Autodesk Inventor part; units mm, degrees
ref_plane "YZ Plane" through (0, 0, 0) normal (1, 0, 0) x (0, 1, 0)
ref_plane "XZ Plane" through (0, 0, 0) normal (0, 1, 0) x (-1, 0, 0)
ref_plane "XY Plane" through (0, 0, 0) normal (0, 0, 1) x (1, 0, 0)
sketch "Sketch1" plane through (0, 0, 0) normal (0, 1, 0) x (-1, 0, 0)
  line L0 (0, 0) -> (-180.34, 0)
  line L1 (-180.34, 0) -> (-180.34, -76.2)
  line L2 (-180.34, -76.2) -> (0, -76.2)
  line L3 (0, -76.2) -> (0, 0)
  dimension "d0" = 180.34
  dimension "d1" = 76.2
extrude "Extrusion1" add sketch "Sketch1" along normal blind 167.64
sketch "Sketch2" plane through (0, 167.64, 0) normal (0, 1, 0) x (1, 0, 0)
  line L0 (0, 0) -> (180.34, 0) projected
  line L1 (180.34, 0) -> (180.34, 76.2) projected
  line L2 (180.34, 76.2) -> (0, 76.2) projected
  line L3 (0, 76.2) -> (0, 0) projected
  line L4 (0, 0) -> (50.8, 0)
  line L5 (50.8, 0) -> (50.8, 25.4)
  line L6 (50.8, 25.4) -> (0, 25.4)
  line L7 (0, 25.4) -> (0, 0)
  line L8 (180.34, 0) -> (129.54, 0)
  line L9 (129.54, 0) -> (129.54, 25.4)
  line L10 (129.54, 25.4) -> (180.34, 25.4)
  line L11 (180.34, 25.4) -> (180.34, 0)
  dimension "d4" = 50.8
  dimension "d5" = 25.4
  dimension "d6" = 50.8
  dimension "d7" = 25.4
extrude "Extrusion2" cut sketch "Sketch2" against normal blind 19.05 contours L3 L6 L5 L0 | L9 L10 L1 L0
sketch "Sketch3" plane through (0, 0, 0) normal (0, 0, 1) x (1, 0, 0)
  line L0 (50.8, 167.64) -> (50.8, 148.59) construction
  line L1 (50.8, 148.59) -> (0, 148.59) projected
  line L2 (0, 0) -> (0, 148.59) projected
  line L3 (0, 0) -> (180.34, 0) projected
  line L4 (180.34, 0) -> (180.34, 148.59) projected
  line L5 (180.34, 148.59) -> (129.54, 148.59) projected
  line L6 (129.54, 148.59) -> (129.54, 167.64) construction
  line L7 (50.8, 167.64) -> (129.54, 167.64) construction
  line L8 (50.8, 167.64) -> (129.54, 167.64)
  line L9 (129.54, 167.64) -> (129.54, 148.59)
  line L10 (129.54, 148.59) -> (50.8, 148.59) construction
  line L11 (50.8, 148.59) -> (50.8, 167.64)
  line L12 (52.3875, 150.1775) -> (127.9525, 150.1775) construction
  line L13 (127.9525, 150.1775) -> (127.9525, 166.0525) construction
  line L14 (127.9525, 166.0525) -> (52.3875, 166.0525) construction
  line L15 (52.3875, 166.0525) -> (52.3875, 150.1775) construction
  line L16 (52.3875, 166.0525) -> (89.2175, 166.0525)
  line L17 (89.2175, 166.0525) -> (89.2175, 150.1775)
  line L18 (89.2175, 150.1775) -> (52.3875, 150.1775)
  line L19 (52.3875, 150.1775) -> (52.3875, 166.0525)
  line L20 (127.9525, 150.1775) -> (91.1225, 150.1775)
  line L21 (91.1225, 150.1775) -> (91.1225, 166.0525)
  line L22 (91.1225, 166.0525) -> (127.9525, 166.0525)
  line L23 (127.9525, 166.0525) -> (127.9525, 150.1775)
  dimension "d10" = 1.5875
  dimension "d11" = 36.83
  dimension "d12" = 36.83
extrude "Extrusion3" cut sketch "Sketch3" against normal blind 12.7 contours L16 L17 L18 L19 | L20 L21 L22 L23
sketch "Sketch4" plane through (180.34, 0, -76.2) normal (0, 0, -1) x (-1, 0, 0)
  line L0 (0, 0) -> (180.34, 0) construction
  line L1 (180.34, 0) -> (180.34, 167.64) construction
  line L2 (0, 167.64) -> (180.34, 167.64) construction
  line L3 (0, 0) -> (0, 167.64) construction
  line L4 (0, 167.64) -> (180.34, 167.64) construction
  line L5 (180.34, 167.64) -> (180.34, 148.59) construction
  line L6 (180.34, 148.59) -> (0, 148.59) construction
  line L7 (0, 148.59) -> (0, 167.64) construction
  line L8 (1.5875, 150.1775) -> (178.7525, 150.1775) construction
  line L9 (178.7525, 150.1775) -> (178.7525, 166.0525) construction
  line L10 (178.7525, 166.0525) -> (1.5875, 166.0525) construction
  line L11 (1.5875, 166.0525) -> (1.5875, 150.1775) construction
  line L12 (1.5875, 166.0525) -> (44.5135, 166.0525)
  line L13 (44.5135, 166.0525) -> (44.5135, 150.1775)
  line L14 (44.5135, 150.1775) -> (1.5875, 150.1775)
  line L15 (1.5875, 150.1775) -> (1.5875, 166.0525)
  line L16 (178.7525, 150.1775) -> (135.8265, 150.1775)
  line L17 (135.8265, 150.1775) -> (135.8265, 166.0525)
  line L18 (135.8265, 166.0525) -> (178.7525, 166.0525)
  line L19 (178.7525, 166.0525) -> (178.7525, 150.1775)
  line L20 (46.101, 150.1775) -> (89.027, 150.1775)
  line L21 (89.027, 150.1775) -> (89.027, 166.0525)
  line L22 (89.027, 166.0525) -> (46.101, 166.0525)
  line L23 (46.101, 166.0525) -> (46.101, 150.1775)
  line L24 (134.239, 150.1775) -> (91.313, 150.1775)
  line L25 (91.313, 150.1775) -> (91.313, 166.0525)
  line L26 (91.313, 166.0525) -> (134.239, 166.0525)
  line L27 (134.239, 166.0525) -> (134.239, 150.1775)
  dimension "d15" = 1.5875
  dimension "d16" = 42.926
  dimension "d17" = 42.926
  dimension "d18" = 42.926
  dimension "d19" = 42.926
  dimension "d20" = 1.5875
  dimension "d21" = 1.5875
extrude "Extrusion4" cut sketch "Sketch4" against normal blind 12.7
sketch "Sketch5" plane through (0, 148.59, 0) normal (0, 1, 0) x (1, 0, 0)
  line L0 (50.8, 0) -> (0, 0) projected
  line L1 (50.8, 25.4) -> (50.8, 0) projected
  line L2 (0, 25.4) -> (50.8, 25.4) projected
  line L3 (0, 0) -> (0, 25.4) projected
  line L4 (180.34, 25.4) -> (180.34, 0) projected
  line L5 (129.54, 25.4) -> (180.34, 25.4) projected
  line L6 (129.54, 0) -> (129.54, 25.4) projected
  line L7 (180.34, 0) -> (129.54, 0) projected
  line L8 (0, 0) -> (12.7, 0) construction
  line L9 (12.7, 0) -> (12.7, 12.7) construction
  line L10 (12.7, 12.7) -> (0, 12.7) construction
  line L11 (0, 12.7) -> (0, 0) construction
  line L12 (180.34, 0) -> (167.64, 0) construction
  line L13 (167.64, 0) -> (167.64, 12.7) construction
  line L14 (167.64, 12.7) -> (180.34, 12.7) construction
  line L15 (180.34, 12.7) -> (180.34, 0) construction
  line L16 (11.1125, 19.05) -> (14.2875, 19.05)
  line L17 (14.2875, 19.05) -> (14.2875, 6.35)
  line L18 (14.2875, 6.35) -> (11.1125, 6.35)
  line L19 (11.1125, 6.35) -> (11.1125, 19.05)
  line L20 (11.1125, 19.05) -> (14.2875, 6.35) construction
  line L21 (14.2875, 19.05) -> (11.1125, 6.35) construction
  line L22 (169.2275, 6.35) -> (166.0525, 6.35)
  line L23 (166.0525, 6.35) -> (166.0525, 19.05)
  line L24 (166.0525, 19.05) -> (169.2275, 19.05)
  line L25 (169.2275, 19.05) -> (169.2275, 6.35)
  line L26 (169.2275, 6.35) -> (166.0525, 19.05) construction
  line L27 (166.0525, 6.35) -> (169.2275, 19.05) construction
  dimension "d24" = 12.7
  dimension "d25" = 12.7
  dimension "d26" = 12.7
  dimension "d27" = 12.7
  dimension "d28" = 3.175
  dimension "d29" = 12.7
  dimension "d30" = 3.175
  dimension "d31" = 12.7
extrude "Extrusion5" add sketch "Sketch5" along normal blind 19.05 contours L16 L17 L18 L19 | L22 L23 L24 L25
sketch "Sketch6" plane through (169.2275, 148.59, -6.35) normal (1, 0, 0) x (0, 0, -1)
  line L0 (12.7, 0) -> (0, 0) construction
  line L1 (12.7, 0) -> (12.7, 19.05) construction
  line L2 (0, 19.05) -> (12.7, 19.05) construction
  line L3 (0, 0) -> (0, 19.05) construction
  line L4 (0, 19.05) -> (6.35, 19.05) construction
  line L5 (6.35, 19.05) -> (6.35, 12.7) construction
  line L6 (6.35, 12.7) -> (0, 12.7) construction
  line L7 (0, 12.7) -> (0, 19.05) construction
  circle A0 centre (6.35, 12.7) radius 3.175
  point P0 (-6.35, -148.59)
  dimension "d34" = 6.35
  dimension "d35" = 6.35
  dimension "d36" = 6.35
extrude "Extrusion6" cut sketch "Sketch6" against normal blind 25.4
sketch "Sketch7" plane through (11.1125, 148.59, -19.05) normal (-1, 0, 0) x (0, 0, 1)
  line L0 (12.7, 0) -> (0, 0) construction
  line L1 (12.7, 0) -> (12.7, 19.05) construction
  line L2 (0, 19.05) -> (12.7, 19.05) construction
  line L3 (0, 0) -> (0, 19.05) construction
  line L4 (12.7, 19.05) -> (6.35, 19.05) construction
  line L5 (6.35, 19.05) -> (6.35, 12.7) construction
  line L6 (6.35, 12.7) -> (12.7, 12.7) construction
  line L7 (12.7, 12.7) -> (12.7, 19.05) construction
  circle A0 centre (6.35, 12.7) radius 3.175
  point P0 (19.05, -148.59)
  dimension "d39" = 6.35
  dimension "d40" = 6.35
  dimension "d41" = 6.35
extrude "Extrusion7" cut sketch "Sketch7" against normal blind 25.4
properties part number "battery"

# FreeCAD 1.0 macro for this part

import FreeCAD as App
import Part
import Sketcher

V = App.Vector
Q = App.Units.Quantity


def add_polygon(sketch, points):
    """Adds a closed chain of lines whose ends are joined by coincident constraints."""
    first, n = sketch.GeometryCount, len(points)
    for a, b in zip(points, points[1:] + points[:1]):
        sketch.addGeometry(Part.LineSegment(App.Vector(*a, 0), App.Vector(*b, 0)), False)
    for i in range(n):
        sketch.addConstraint(Sketcher.Constraint("Coincident", first + i, 2, first + (i + 1) % n, 1))

doc = App.newDocument("Part")
params = doc.addObject("Spreadsheet::Sheet", "Params")
for row, (alias, value) in enumerate([
    ("sketch1_height", "3 in"),
    ("sketch1_width", "7.1 in"),
    ("pad1_length", "6.6 in"),
    ("sketch2_width", "2 in"),
    ("sketch2_height", "1 in"),
    ("pocket1_length", "0.75 in"),
    ("sketch3_width", "1.45 in"),
    ("sketch3_height", "0.625 in"),
    ("pocket2_length", "0.5 in"),
    ("sketch4_width", "1.69 in"),
    ("sketch4_height", "0.625 in"),
    ("pocket3_length", "0.5 in"),
    ("sketch5_height", "0.5 in"),
    ("sketch5_width", "0.125 in"),
    ("pad2_length", "0.75 in"),
    ("sketch6_diameter", "0.25 in"),
    ("pocket4_length", "1 in"),
    ("sketch7_diameter", "0.25 in"),
    ("pocket5_length", "1 in"),
], start=1):
    params.set(f"A{row}", alias)
    params.set(f"B{row}", "=" + value)
    params.setAlias(f"B{row}", alias)

body = doc.addObject("PartDesign::Body", "Body")

# Sketch on XZ plane
sketch1 = doc.addObject("Sketcher::SketchObject", "Sketch")
body.addObject(sketch1)
sketch1.AttachmentSupport = (doc.XZ_Plane, [""])
sketch1.MapMode = "FlatFace"
add_polygon(sketch1, [(0, -76), (0, 0), (180, 0), (180, -76)])  # lines 0-3
sketch1.addConstraint(Sketcher.Constraint("Vertical", 0))
sketch1.addConstraint(Sketcher.Constraint("Horizontal", 1))
sketch1.addConstraint(Sketcher.Constraint("Vertical", 2))
sketch1.addConstraint(Sketcher.Constraint("Horizontal", 3))
sketch1.addConstraint(Sketcher.Constraint("Coincident", 0, 2, -1, 1))
sketch1.addConstraint(Sketcher.Constraint("DistanceY", 0, 1, 0, 2, Q("3 in")))
sketch1.addConstraint(Sketcher.Constraint("DistanceX", 1, 1, 1, 2, Q("7.1 in")))
sketch1.setExpression("Constraints[9]", "Params.sketch1_height")
sketch1.setExpression("Constraints[10]", "Params.sketch1_width")
pad1 = doc.addObject("PartDesign::Pad", "Pad")
body.addObject(pad1)
pad1.Profile = sketch1
pad1.setExpression("Length", "Params.pad1_length")
pad1.Reversed = True

# Sketch on XZ plane
sketch2 = doc.addObject("Sketcher::SketchObject", "Sketch001")
body.addObject(sketch2)
sketch2.AttachmentSupport = (doc.XZ_Plane, [""])
sketch2.MapMode = "FlatFace"
sketch2.AttachmentOffset = App.Placement(V(0, 0, -6.6 * 25.4), App.Rotation())
add_polygon(sketch2, [(0, -25), (0, 0), (51, 0), (51, -25)])  # lines 0-3
add_polygon(sketch2, [(130, -25), (130, 0), (180, 0), (180, -25)])  # lines 4-7
sketch2.addConstraint(Sketcher.Constraint("Vertical", 0))
sketch2.addConstraint(Sketcher.Constraint("Horizontal", 1))
sketch2.addConstraint(Sketcher.Constraint("Vertical", 2))
sketch2.addConstraint(Sketcher.Constraint("Horizontal", 3))
sketch2.addConstraint(Sketcher.Constraint("Vertical", 4))
sketch2.addConstraint(Sketcher.Constraint("Horizontal", 5))
sketch2.addConstraint(Sketcher.Constraint("Vertical", 6))
sketch2.addConstraint(Sketcher.Constraint("Horizontal", 7))
sketch2.addConstraint(Sketcher.Constraint("Coincident", 0, 2, -1, 1))
sketch2.addConstraint(Sketcher.Constraint("PointOnObject", 4, 2, -1))
sketch2.addConstraint(Sketcher.Constraint("Horizontal", 3, 2, 6, 2))
sketch2.addConstraint(Sketcher.Constraint("Equal", 3, 5))
sketch2.addConstraint(Sketcher.Constraint("DistanceX", 1, 1, 1, 2, Q("2 in")))
sketch2.addConstraint(Sketcher.Constraint("DistanceY", 0, 1, 0, 2, Q("1 in")))
sketch2.addConstraint(Sketcher.Constraint("DistanceX", -1, 1, 4, 2, Q("5.1 in")))
sketch2.setExpression("Constraints[20]", "Params.sketch2_width")
sketch2.setExpression("Constraints[21]", "Params.sketch2_height")
pocket1 = doc.addObject("PartDesign::Pocket", "Pocket")
body.addObject(pocket1)
pocket1.Profile = sketch2
pocket1.setExpression("Length", "Params.pocket1_length")
pocket1.Reversed = True

# Sketch on XY plane
sketch3 = doc.addObject("Sketcher::SketchObject", "Sketch002")
body.addObject(sketch3)
sketch3.AttachmentSupport = (doc.XY_Plane, [""])
sketch3.MapMode = "FlatFace"
add_polygon(sketch3, [(89, 166), (52, 166), (52, 150), (89, 150)])  # lines 0-3
add_polygon(sketch3, [(91, 150), (128, 150), (128, 166), (91, 166)])  # lines 4-7
sketch3.addConstraint(Sketcher.Constraint("Horizontal", 0))
sketch3.addConstraint(Sketcher.Constraint("Vertical", 1))
sketch3.addConstraint(Sketcher.Constraint("Horizontal", 2))
sketch3.addConstraint(Sketcher.Constraint("Vertical", 3))
sketch3.addConstraint(Sketcher.Constraint("Horizontal", 4))
sketch3.addConstraint(Sketcher.Constraint("Vertical", 5))
sketch3.addConstraint(Sketcher.Constraint("Horizontal", 6))
sketch3.addConstraint(Sketcher.Constraint("Vertical", 7))
sketch3.addConstraint(Sketcher.Constraint("Horizontal", 2, 2, 4, 2))
sketch3.addConstraint(Sketcher.Constraint("Horizontal", 3, 2, 5, 2))
sketch3.addConstraint(Sketcher.Constraint("Equal", 2, 4))
sketch3.addConstraint(Sketcher.Constraint("DistanceX", 0, 2, 0, 1, Q("1.45 in")))
sketch3.addConstraint(Sketcher.Constraint("DistanceY", 1, 2, 1, 1, Q("0.625 in")))
sketch3.addConstraint(Sketcher.Constraint("DistanceX", -1, 1, 0, 2, Q("2.0625 in")))
sketch3.addConstraint(Sketcher.Constraint("DistanceX", 2, 2, 4, 2, Q("1.525 in")))
sketch3.addConstraint(Sketcher.Constraint("DistanceY", -1, 1, 0, 2, Q("6.5375 in")))
sketch3.setExpression("Constraints[19]", "Params.sketch3_width")
sketch3.setExpression("Constraints[20]", "Params.sketch3_height")
pocket2 = doc.addObject("PartDesign::Pocket", "Pocket001")
body.addObject(pocket2)
pocket2.Profile = sketch3
pocket2.setExpression("Length", "Params.pocket2_length")

# Sketch on XY plane
sketch4 = doc.addObject("Sketcher::SketchObject", "Sketch003")
body.addObject(sketch4)
sketch4.AttachmentSupport = (doc.XY_Plane, [""])
sketch4.MapMode = "FlatFace"
sketch4.AttachmentOffset = App.Placement(V(0, 0, -3 * 25.4), App.Rotation())
add_polygon(sketch4, [(136, 166), (179, 166), (179, 150), (136, 150)])  # lines 0-3
add_polygon(sketch4, [(45, 150), (2, 150), (2, 166), (45, 166)])  # lines 4-7
add_polygon(sketch4, [(134, 166), (134, 150), (91, 150), (91, 166)])  # lines 8-11
add_polygon(sketch4, [(89, 150), (46, 150), (46, 166), (89, 166)])  # lines 12-15
sketch4.addConstraint(Sketcher.Constraint("Horizontal", 0))
sketch4.addConstraint(Sketcher.Constraint("Vertical", 1))
sketch4.addConstraint(Sketcher.Constraint("Horizontal", 2))
sketch4.addConstraint(Sketcher.Constraint("Vertical", 3))
sketch4.addConstraint(Sketcher.Constraint("Horizontal", 4))
sketch4.addConstraint(Sketcher.Constraint("Vertical", 5))
sketch4.addConstraint(Sketcher.Constraint("Horizontal", 6))
sketch4.addConstraint(Sketcher.Constraint("Vertical", 7))
sketch4.addConstraint(Sketcher.Constraint("Vertical", 8))
sketch4.addConstraint(Sketcher.Constraint("Horizontal", 9))
sketch4.addConstraint(Sketcher.Constraint("Vertical", 10))
sketch4.addConstraint(Sketcher.Constraint("Horizontal", 11))
sketch4.addConstraint(Sketcher.Constraint("Horizontal", 12))
sketch4.addConstraint(Sketcher.Constraint("Vertical", 13))
sketch4.addConstraint(Sketcher.Constraint("Horizontal", 14))
sketch4.addConstraint(Sketcher.Constraint("Vertical", 15))
sketch4.addConstraint(Sketcher.Constraint("Horizontal", 2, 2, 4, 2))
sketch4.addConstraint(Sketcher.Constraint("Horizontal", 3, 2, 5, 2))
sketch4.addConstraint(Sketcher.Constraint("Horizontal", 7, 2, 8, 2))
sketch4.addConstraint(Sketcher.Constraint("Horizontal", 6, 2, 10, 2))
sketch4.addConstraint(Sketcher.Constraint("Horizontal", 9, 2, 12, 2))
sketch4.addConstraint(Sketcher.Constraint("Horizontal", 11, 2, 13, 2))
sketch4.addConstraint(Sketcher.Constraint("Equal", 2, 4))
sketch4.addConstraint(Sketcher.Constraint("Equal", 6, 9))
sketch4.addConstraint(Sketcher.Constraint("Equal", 11, 12))
sketch4.addConstraint(Sketcher.Constraint("DistanceX", 0, 1, 0, 2, Q("1.69 in")))
sketch4.addConstraint(Sketcher.Constraint("DistanceX", -1, 1, 4, 2, Q("0.0625 in")))
sketch4.addConstraint(Sketcher.Constraint("DistanceX", 8, 2, 2, 2, Q("0.0625 in")))
sketch4.addConstraint(Sketcher.Constraint("DistanceX", 7, 2, 12, 2, Q("0.0625 in")))
sketch4.addConstraint(Sketcher.Constraint("DistanceY", 1, 2, 1, 1, Q("0.625 in")))
sketch4.addConstraint(Sketcher.Constraint("DistanceX", 12, 2, 9, 2, Q("1.78 in")))
sketch4.addConstraint(Sketcher.Constraint("DistanceY", -1, 1, 0, 2, Q("6.5375 in")))
sketch4.setExpression("Constraints[41]", "Params.sketch4_width")
sketch4.setExpression("Constraints[45]", "Params.sketch4_height")
pocket3 = doc.addObject("PartDesign::Pocket", "Pocket002")
body.addObject(pocket3)
pocket3.Profile = sketch4
pocket3.setExpression("Length", "Params.pocket3_length")
pocket3.Reversed = True

# Sketch on XZ plane
sketch5 = doc.addObject("Sketcher::SketchObject", "Sketch004")
body.addObject(sketch5)
sketch5.AttachmentSupport = (doc.XZ_Plane, [""])
sketch5.MapMode = "FlatFace"
sketch5.AttachmentOffset = App.Placement(V(0, 0, -5.85 * 25.4), App.Rotation())
add_polygon(sketch5, [(14.3, -19.1), (11.1, -19.1), (11.1, -6.3), (14.3, -6.3)])  # lines 0-3
add_polygon(sketch5, [(166.1, -6.3), (169.2, -6.3), (169.2, -19.1), (166.1, -19.1)])  # lines 4-7
sketch5.addConstraint(Sketcher.Constraint("Horizontal", 0))
sketch5.addConstraint(Sketcher.Constraint("Vertical", 1))
sketch5.addConstraint(Sketcher.Constraint("Horizontal", 2))
sketch5.addConstraint(Sketcher.Constraint("Vertical", 3))
sketch5.addConstraint(Sketcher.Constraint("Horizontal", 4))
sketch5.addConstraint(Sketcher.Constraint("Vertical", 5))
sketch5.addConstraint(Sketcher.Constraint("Horizontal", 6))
sketch5.addConstraint(Sketcher.Constraint("Vertical", 7))
sketch5.addConstraint(Sketcher.Constraint("Horizontal", 2, 2, 4, 2))
sketch5.addConstraint(Sketcher.Constraint("Horizontal", 3, 2, 5, 2))
sketch5.addConstraint(Sketcher.Constraint("Equal", 2, 4))
sketch5.addConstraint(Sketcher.Constraint("DistanceY", 1, 1, 1, 2, Q("0.5 in")))
sketch5.addConstraint(Sketcher.Constraint("DistanceX", 0, 2, 0, 1, Q("0.125 in")))
sketch5.addConstraint(Sketcher.Constraint("DistanceX", 2, 2, 4, 2, Q("6.1 in")))
sketch5.addConstraint(Sketcher.Constraint("DistanceY", 0, 2, -1, 1, Q("0.75 in")))
sketch5.addConstraint(Sketcher.Constraint("DistanceX", -1, 1, 0, 2, Q("0.4375 in")))
sketch5.setExpression("Constraints[19]", "Params.sketch5_height")
sketch5.setExpression("Constraints[20]", "Params.sketch5_width")
pad2 = doc.addObject("PartDesign::Pad", "Pad001")
body.addObject(pad2)
pad2.Profile = sketch5
pad2.setExpression("Length", "Params.pad2_length")
pad2.Reversed = True

# Sketch on YZ plane
sketch6 = doc.addObject("Sketcher::SketchObject", "Sketch005")
body.addObject(sketch6)
sketch6.AttachmentSupport = (doc.YZ_Plane, [""])
sketch6.MapMode = "FlatFace"
sketch6.AttachmentOffset = App.Placement(V(0, 0, 6.6625 * 25.4), App.Rotation())
sketch6.addGeometry(Part.Circle(V(161.3, -12.7, 0), V(0, 0, 1), 3.2), False)
sketch6.addConstraint(Sketcher.Constraint("Diameter", 0, Q("0.25 in")))
sketch6.addConstraint(Sketcher.Constraint("DistanceY", 0, 3, -1, 1, Q("0.5 in")))
sketch6.addConstraint(Sketcher.Constraint("DistanceX", -1, 1, 0, 3, Q("6.35 in")))
sketch6.setExpression("Constraints[0]", "Params.sketch6_diameter")
pocket4 = doc.addObject("PartDesign::Pocket", "Pocket003")
body.addObject(pocket4)
pocket4.Profile = sketch6
pocket4.setExpression("Length", "Params.pocket4_length")

# Sketch on YZ plane
sketch7 = doc.addObject("Sketcher::SketchObject", "Sketch006")
body.addObject(sketch7)
sketch7.AttachmentSupport = (doc.YZ_Plane, [""])
sketch7.MapMode = "FlatFace"
sketch7.AttachmentOffset = App.Placement(V(0, 0, 0.4375 * 25.4), App.Rotation())
sketch7.addGeometry(Part.Circle(V(161.3, -12.7, 0), V(0, 0, 1), 3.2), False)
sketch7.addConstraint(Sketcher.Constraint("Diameter", 0, Q("0.25 in")))
sketch7.addConstraint(Sketcher.Constraint("DistanceY", 0, 3, -1, 1, Q("0.5 in")))
sketch7.addConstraint(Sketcher.Constraint("DistanceX", -1, 1, 0, 3, Q("6.35 in")))
sketch7.setExpression("Constraints[0]", "Params.sketch7_diameter")
pocket5 = doc.addObject("PartDesign::Pocket", "Pocket004")
body.addObject(pocket5)
pocket5.Profile = sketch7
pocket5.setExpression("Length", "Params.pocket5_length")
pocket5.Reversed = True

doc.recompute()
